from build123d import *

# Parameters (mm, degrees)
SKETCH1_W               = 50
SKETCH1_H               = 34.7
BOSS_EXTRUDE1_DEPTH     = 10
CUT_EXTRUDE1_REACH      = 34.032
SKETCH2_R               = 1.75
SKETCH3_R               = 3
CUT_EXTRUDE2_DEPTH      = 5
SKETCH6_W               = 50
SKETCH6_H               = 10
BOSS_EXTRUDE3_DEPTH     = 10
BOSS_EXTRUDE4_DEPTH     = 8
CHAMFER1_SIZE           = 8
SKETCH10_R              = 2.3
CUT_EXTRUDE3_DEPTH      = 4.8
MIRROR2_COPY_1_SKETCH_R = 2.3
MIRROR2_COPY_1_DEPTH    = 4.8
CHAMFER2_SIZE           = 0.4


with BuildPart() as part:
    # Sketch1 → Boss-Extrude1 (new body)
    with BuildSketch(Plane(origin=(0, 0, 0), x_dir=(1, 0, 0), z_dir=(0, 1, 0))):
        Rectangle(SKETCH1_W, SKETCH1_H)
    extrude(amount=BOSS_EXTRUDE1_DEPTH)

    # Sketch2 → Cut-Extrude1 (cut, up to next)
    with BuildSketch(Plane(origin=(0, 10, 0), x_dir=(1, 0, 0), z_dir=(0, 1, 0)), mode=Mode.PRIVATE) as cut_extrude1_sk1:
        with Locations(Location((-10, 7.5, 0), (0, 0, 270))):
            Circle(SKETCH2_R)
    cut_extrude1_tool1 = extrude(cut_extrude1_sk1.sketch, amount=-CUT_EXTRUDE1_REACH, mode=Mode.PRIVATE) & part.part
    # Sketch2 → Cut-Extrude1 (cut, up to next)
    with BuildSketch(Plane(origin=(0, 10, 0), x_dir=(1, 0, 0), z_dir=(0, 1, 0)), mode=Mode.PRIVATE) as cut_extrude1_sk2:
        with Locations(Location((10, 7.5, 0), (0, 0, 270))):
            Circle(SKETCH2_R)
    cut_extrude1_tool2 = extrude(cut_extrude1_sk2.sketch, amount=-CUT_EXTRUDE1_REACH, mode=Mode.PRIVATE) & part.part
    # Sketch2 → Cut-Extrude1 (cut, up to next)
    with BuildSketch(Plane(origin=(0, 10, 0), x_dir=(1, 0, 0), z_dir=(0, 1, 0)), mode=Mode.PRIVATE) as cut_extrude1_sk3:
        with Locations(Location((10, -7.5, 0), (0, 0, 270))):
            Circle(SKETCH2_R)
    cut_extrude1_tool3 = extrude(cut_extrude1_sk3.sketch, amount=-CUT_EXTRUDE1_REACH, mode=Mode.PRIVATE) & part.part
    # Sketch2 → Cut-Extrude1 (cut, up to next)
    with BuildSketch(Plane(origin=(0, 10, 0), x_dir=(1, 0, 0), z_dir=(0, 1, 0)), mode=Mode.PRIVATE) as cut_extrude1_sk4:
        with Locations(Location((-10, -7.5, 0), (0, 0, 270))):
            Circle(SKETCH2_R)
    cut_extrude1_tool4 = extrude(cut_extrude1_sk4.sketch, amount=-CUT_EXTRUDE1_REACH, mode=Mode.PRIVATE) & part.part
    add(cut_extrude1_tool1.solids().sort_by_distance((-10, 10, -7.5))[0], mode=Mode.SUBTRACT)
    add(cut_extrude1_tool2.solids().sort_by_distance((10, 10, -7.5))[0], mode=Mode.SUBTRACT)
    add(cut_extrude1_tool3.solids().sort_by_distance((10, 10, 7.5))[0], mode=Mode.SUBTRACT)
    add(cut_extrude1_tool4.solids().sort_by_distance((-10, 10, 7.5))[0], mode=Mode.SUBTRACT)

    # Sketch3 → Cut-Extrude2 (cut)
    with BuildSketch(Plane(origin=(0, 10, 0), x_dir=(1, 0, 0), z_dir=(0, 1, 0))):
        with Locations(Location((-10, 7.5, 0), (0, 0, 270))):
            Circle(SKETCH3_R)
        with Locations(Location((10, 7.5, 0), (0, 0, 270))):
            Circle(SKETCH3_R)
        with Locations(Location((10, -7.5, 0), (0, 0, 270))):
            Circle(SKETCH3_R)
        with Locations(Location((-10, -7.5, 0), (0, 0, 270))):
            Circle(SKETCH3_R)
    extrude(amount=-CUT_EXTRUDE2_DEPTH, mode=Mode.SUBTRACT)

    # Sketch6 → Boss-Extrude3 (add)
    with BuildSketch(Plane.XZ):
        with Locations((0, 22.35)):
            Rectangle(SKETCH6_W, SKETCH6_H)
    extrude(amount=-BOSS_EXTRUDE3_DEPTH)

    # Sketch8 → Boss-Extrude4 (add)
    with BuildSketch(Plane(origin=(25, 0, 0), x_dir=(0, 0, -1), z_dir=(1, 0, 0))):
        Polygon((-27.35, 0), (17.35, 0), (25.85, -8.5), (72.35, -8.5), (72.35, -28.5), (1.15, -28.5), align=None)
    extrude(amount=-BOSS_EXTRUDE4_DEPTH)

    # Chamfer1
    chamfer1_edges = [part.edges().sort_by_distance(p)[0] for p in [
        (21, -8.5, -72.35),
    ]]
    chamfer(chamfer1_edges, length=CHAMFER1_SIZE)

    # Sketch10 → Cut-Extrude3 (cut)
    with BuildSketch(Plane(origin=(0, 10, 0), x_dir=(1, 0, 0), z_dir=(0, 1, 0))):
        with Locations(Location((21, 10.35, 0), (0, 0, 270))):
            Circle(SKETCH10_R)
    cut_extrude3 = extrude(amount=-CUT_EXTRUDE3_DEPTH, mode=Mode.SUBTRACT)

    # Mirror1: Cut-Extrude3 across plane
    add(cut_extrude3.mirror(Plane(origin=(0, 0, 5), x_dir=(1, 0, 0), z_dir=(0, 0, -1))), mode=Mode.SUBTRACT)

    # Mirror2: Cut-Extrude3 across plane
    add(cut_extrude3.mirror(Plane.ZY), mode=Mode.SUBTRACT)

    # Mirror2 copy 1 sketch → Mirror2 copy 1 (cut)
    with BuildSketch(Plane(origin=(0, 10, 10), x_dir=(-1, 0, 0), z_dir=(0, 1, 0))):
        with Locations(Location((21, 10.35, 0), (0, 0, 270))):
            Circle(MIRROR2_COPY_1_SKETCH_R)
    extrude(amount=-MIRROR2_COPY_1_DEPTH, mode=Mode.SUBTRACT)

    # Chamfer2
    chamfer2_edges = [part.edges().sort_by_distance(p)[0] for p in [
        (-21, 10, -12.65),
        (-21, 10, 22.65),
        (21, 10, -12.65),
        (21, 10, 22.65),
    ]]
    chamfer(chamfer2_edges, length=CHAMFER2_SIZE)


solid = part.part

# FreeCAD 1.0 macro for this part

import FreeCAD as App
import Part
import Sketcher
from FreeCAD import Vector
Q = App.Units.Quantity


def edges_at(feature, points):
    """Names of the edges that pass closest to the given points."""
    edges = feature.Shape.Edges
    near = lambda p: min(range(len(edges)), key=lambda i: edges[i].distToShape(Part.Vertex(*p))[0])
    return sorted({f"Edge{near(p) + 1}" for p in points})

doc = App.newDocument("Part")
body = doc.addObject("PartDesign::Body", "Body")

# Sketch on XZ plane
sketch1 = doc.addObject("Sketcher::SketchObject", "Sketch")
body.addObject(sketch1)
sketch1.AttachmentSupport = (doc.XZ_Plane, [""])
sketch1.MapMode = "FlatFace"
sketch1.addGeometry(Part.LineSegment(Vector(-25, -17, 0), Vector(-25, 17, 0)), False)
sketch1.addGeometry(Part.LineSegment(Vector(-25, 17, 0), Vector(25, 17, 0)), False)
sketch1.addGeometry(Part.LineSegment(Vector(25, 17, 0), Vector(25, -17, 0)), False)
sketch1.addGeometry(Part.LineSegment(Vector(25, -17, 0), Vector(-25, -17, 0)), False)
sketch1.addConstraint(Sketcher.Constraint("Coincident", 0, 2, 1, 1))
sketch1.addConstraint(Sketcher.Constraint("Coincident", 1, 2, 2, 1))
sketch1.addConstraint(Sketcher.Constraint("Coincident", 2, 2, 3, 1))
sketch1.addConstraint(Sketcher.Constraint("Coincident", 3, 2, 0, 1))
sketch1.addConstraint(Sketcher.Constraint("Vertical", 0))
sketch1.addConstraint(Sketcher.Constraint("Horizontal", 1))
sketch1.addConstraint(Sketcher.Constraint("Vertical", 2))
sketch1.addConstraint(Sketcher.Constraint("Horizontal", 3))
sketch1.addConstraint(Sketcher.Constraint("Symmetric", 0, 2, 2, 2, -1, 1))
sketch1.addConstraint(Sketcher.Constraint("DistanceX", 1, 1, 1, 2, Q("50 mm")))
sketch1.addConstraint(Sketcher.Constraint("DistanceY", 0, 1, 0, 2, Q("34.7 mm")))
pad1 = doc.addObject("PartDesign::Pad", "Pad")
body.addObject(pad1)
pad1.Profile = sketch1
pad1.Length = 10
pad1.Reversed = True

# Sketch on XZ plane
sketch2 = doc.addObject("Sketcher::SketchObject", "Sketch001")
body.addObject(sketch2)
sketch2.AttachmentSupport = (doc.XZ_Plane, [""])
sketch2.MapMode = "FlatFace"
sketch2.AttachmentOffset = App.Placement(Vector(0, 0, -10), App.Rotation())
sketch2.addGeometry(Part.Circle(Vector(-10, -7.5, 0), Vector(0, 0, 1), 1.8), False)
sketch2.addConstraint(Sketcher.Constraint("Diameter", 0, Q("3.5 mm")))
sketch2.addConstraint(Sketcher.Constraint("DistanceX", 0, 3, -1, 1, Q("10 mm")))
sketch2.addConstraint(Sketcher.Constraint("DistanceY", 0, 3, -1, 1, Q("7.5 mm")))
pocket1 = doc.addObject("PartDesign::Pocket", "Pocket")
body.addObject(pocket1)
pocket1.Profile = sketch2
pocket1.Type = "UpToFirst"
pocket1.Reversed = True

# Sketch on XZ plane
sketch3 = doc.addObject("Sketcher::SketchObject", "Sketch002")
body.addObject(sketch3)
sketch3.AttachmentSupport = (doc.XZ_Plane, [""])
sketch3.MapMode = "FlatFace"
sketch3.AttachmentOffset = App.Placement(Vector(0, 0, -10), App.Rotation())
sketch3.addGeometry(Part.Circle(Vector(10, -7.5, 0), Vector(0, 0, 1), 1.8), False)
sketch3.addConstraint(Sketcher.Constraint("Diameter", 0, Q("3.5 mm")))
sketch3.addConstraint(Sketcher.Constraint("DistanceX", -1, 1, 0, 3, Q("10 mm")))
sketch3.addConstraint(Sketcher.Constraint("DistanceY", 0, 3, -1, 1, Q("7.5 mm")))
pocket2 = doc.addObject("PartDesign::Pocket", "Pocket001")
body.addObject(pocket2)
pocket2.Profile = sketch3
pocket2.Type = "UpToFirst"
pocket2.Reversed = True

# Sketch on XZ plane
sketch4 = doc.addObject("Sketcher::SketchObject", "Sketch003")
body.addObject(sketch4)
sketch4.AttachmentSupport = (doc.XZ_Plane, [""])
sketch4.MapMode = "FlatFace"
sketch4.AttachmentOffset = App.Placement(Vector(0, 0, -10), App.Rotation())
sketch4.addGeometry(Part.Circle(Vector(10, 7.5, 0), Vector(0, 0, 1), 1.8), False)
sketch4.addConstraint(Sketcher.Constraint("Diameter", 0, Q("3.5 mm")))
sketch4.addConstraint(Sketcher.Constraint("DistanceX", -1, 1, 0, 3, Q("10 mm")))
sketch4.addConstraint(Sketcher.Constraint("DistanceY", -1, 1, 0, 3, Q("7.5 mm")))
pocket3 = doc.addObject("PartDesign::Pocket", "Pocket002")
body.addObject(pocket3)
pocket3.Profile = sketch4
pocket3.Type = "UpToFirst"
pocket3.Reversed = True

# Sketch on XZ plane
sketch5 = doc.addObject("Sketcher::SketchObject", "Sketch004")
body.addObject(sketch5)
sketch5.AttachmentSupport = (doc.XZ_Plane, [""])
sketch5.MapMode = "FlatFace"
sketch5.AttachmentOffset = App.Placement(Vector(0, 0, -10), App.Rotation())
sketch5.addGeometry(Part.Circle(Vector(-10, 7.5, 0), Vector(0, 0, 1), 1.8), False)
sketch5.addConstraint(Sketcher.Constraint("Diameter", 0, Q("3.5 mm")))
sketch5.addConstraint(Sketcher.Constraint("DistanceX", 0, 3, -1, 1, Q("10 mm")))
sketch5.addConstraint(Sketcher.Constraint("DistanceY", -1, 1, 0, 3, Q("7.5 mm")))
pocket4 = doc.addObject("PartDesign::Pocket", "Pocket003")
body.addObject(pocket4)
pocket4.Profile = sketch5
pocket4.Type = "UpToFirst"
pocket4.Reversed = True

# Sketch on XZ plane
sketch6 = doc.addObject("Sketcher::SketchObject", "Sketch005")
body.addObject(sketch6)
sketch6.AttachmentSupport = (doc.XZ_Plane, [""])
sketch6.MapMode = "FlatFace"
sketch6.AttachmentOffset = App.Placement(Vector(0, 0, -10), App.Rotation())
sketch6.addGeometry(Part.Circle(Vector(-10, -7.5, 0), Vector(0, 0, 1), 3), False)
sketch6.addGeometry(Part.Circle(Vector(10, -7.5, 0), Vector(0, 0, 1), 3), False)
sketch6.addGeometry(Part.Circle(Vector(10, 7.5, 0), Vector(0, 0, 1), 3), False)
sketch6.addGeometry(Part.Circle(Vector(-10, 7.5, 0), Vector(0, 0, 1), 3), False)
sketch6.addConstraint(Sketcher.Constraint("Equal", 0, 1))
sketch6.addConstraint(Sketcher.Constraint("Equal", 1, 2))
sketch6.addConstraint(Sketcher.Constraint("Equal", 2, 3))
sketch6.addConstraint(Sketcher.Constraint("Symmetric", 0, 3, 2, 3, -1, 1))
sketch6.addConstraint(Sketcher.Constraint("Symmetric", 1, 3, 3, 3, -1, 1))
sketch6.addConstraint(Sketcher.Constraint("Symmetric", 0, 3, 1, 3, -2))
sketch6.addConstraint(Sketcher.Constraint("Diameter", 0, Q("6 mm")))
sketch6.addConstraint(Sketcher.Constraint("DistanceX", 0, 3, -1, 1, Q("10 mm")))
sketch6.addConstraint(Sketcher.Constraint("DistanceY", 1, 3, 2, 3, Q("15 mm")))
pocket5 = doc.addObject("PartDesign::Pocket", "Pocket004")
body.addObject(pocket5)
pocket5.Profile = sketch6
pocket5.Length = 5
pocket5.Reversed = True

# Sketch on XZ plane
sketch7 = doc.addObject("Sketcher::SketchObject", "Sketch006")
body.addObject(sketch7)
sketch7.AttachmentSupport = (doc.XZ_Plane, [""])
sketch7.MapMode = "FlatFace"
sketch7.addGeometry(Part.LineSegment(Vector(-25, 27, 0), Vector(-25, 17, 0)), False)
sketch7.addGeometry(Part.LineSegment(Vector(-25, 17, 0), Vector(25, 17, 0)), False)
sketch7.addGeometry(Part.LineSegment(Vector(25, 17, 0), Vector(25, 27, 0)), False)
sketch7.addGeometry(Part.LineSegment(Vector(25, 27, 0), Vector(-25, 27, 0)), False)
sketch7.addConstraint(Sketcher.Constraint("Coincident", 0, 2, 1, 1))
sketch7.addConstraint(Sketcher.Constraint("Coincident", 1, 2, 2, 1))
sketch7.addConstraint(Sketcher.Constraint("Coincident", 2, 2, 3, 1))
sketch7.addConstraint(Sketcher.Constraint("Coincident", 3, 2, 0, 1))
sketch7.addConstraint(Sketcher.Constraint("Vertical", 0))
sketch7.addConstraint(Sketcher.Constraint("Horizontal", 1))
sketch7.addConstraint(Sketcher.Constraint("Vertical", 2))
sketch7.addConstraint(Sketcher.Constraint("Horizontal", 3))
sketch7.addConstraint(Sketcher.Constraint("DistanceX", 1, 1, 1, 2, Q("50 mm")))
sketch7.addConstraint(Sketcher.Constraint("DistanceY", 0, 2, 0, 1, Q("10 mm")))
sketch7.addConstraint(Sketcher.Constraint("DistanceX", 0, 2, -1, 1, Q("25 mm")))
sketch7.addConstraint(Sketcher.Constraint("DistanceY", -1, 1, 0, 2, Q("17.35 mm")))
pad2 = doc.addObject("PartDesign::Pad", "Pad001")
body.addObject(pad2)
pad2.Profile = sketch7
pad2.Length = 10
pad2.Reversed = True

# Sketch on YZ plane
sketch8 = doc.addObject("Sketcher::SketchObject", "Sketch007")
body.addObject(sketch8)
sketch8.AttachmentSupport = (doc.YZ_Plane, [""])
sketch8.MapMode = "FlatFace"
sketch8.AttachmentOffset = App.Placement(Vector(0, 0, 25), App.Rotation())
sketch8.addGeometry(Part.LineSegment(Vector(0, -17, 0), Vector(0, 27, 0)), False)
sketch8.addGeometry(Part.LineSegment(Vector(0, 27, 0), Vector(-28, -1, 0)), False)
sketch8.addGeometry(Part.LineSegment(Vector(-28, -1, 0), Vector(-28, -72, 0)), False)
sketch8.addGeometry(Part.LineSegment(Vector(-28, -72, 0), Vector(-8, -72, 0)), False)
sketch8.addGeometry(Part.LineSegment(Vector(-8, -72, 0), Vector(-8, -26, 0)), False)
sketch8.addGeometry(Part.LineSegment(Vector(-8, -26, 0), Vector(0, -17, 0)), False)
sketch8.addConstraint(Sketcher.Constraint("Coincident", 0, 2, 1, 1))
sketch8.addConstraint(Sketcher.Constraint("Coincident", 1, 2, 2, 1))
sketch8.addConstraint(Sketcher.Constraint("Coincident", 2, 2, 3, 1))
sketch8.addConstraint(Sketcher.Constraint("Coincident", 3, 2, 4, 1))
sketch8.addConstraint(Sketcher.Constraint("Coincident", 4, 2, 5, 1))
sketch8.addConstraint(Sketcher.Constraint("Coincident", 5, 2, 0, 1))
sketch8.addConstraint(Sketcher.Constraint("Vertical", 0))
sketch8.addConstraint(Sketcher.Constraint("Vertical", 2))
sketch8.addConstraint(Sketcher.Constraint("Horizontal", 3))
sketch8.addConstraint(Sketcher.Constraint("Vertical", 4))
sketch8.addConstraint(Sketcher.Constraint("PointOnObject", 0, 2, -2))
sketch8.addConstraint(Sketcher.Constraint("Parallel", 1, 5))
sketch8.addConstraint(Sketcher.Constraint("DistanceX", 3, 1, 3, 2, Q("20 mm")))
sketch8.addConstraint(Sketcher.Constraint("Angle", 1, Q("-135 deg")))
sketch8.addConstraint(Sketcher.Constraint("DistanceY", 0, 1, 0, 2, Q("44.7 mm")))
sketch8.addConstraint(Sketcher.Constraint("DistanceY", 2, 2, 2, 1, Q("71.2 mm")))
sketch8.addConstraint(Sketcher.Constraint("DistanceY", 3, 2, 5, 2, Q("55 mm")))
sketch8.addConstraint(Sketcher.Constraint("DistanceY", -1, 1, 0, 2, Q("27.35 mm")))
pad3 = doc.addObject("PartDesign::Pad", "Pad002")
body.addObject(pad3)
pad3.Profile = sketch8
pad3.Length = 8
pad3.Reversed = True
doc.recompute()

chamfer = doc.addObject("PartDesign::Chamfer", "Chamfer")
body.addObject(chamfer)
chamfer.Base = (pad3, edges_at(pad3, [(21, -8.5, -72.35)]))
chamfer.Size = 8

# Sketch on XZ plane
sketch9 = doc.addObject("Sketcher::SketchObject", "Sketch008")
body.addObject(sketch9)
sketch9.AttachmentSupport = (doc.XZ_Plane, [""])
sketch9.MapMode = "FlatFace"
sketch9.AttachmentOffset = App.Placement(Vector(0, 0, -10), App.Rotation())
sketch9.addGeometry(Part.Circle(Vector(21, -10.3, 0), Vector(0, 0, 1), 2.3), False)
sketch9.addConstraint(Sketcher.Constraint("Diameter", 0, Q("4.6 mm")))
sketch9.addConstraint(Sketcher.Constraint("DistanceX", -1, 1, 0, 3, Q("21 mm")))
sketch9.addConstraint(Sketcher.Constraint("DistanceY", 0, 3, -1, 1, Q("10.35 mm")))
pocket6 = doc.addObject("PartDesign::Pocket", "Pocket005")
body.addObject(pocket6)
pocket6.Profile = sketch9
pocket6.Length = 4.8
pocket6.Reversed = True
doc.recompute()

datumplane = doc.addObject("PartDesign::Plane", "DatumPlane")
body.addObject(datumplane)
datumplane.AttachmentSupport = (doc.XY_Plane, [""])
datumplane.MapMode = "FlatFace"
datumplane.AttachmentOffset = App.Placement(Vector(0, 0, 5), App.Rotation())
mirrored = doc.addObject("PartDesign::Mirrored", "Mirrored")
body.addObject(mirrored)
mirrored.Originals = [pocket6]
mirrored.MirrorPlane = (datumplane, [""])
body.Tip = mirrored
doc.recompute()

mirrored2 = doc.addObject("PartDesign::Mirrored", "Mirrored001")
body.addObject(mirrored2)
mirrored2.Originals = [pocket6]
mirrored2.MirrorPlane = (doc.YZ_Plane, [""])
body.Tip = mirrored2

# Sketch on XZ plane
sketch10 = doc.addObject("Sketcher::SketchObject", "Sketch009")
body.addObject(sketch10)
sketch10.AttachmentSupport = (doc.XZ_Plane, [""])
sketch10.MapMode = "FlatFace"
sketch10.AttachmentOffset = App.Placement(Vector(0, 0, -10), App.Rotation())
sketch10.addGeometry(Part.Circle(Vector(-21, 20.4, 0), Vector(0, 0, 1), 2.3), False)
sketch10.addConstraint(Sketcher.Constraint("Diameter", 0, Q("4.6 mm")))
sketch10.addConstraint(Sketcher.Constraint("DistanceX", 0, 3, -1, 1, Q("21 mm")))
sketch10.addConstraint(Sketcher.Constraint("DistanceY", -1, 1, 0, 3, Q("20.35 mm")))
pocket7 = doc.addObject("PartDesign::Pocket", "Pocket006")
body.addObject(pocket7)
pocket7.Profile = sketch10
pocket7.Length = 4.8
pocket7.Reversed = True
doc.recompute()

chamfer2 = doc.addObject("PartDesign::Chamfer", "Chamfer001")
body.addObject(chamfer2)
chamfer2.Base = (pocket7, edges_at(pocket7, [
    (-21, 10, -12.65),
    (-21, 10, 22.65),
    (21, 10, -12.65),
    (21, 10, 22.65),
]))
chamfer2.Size = 0.4

doc.recompute()
